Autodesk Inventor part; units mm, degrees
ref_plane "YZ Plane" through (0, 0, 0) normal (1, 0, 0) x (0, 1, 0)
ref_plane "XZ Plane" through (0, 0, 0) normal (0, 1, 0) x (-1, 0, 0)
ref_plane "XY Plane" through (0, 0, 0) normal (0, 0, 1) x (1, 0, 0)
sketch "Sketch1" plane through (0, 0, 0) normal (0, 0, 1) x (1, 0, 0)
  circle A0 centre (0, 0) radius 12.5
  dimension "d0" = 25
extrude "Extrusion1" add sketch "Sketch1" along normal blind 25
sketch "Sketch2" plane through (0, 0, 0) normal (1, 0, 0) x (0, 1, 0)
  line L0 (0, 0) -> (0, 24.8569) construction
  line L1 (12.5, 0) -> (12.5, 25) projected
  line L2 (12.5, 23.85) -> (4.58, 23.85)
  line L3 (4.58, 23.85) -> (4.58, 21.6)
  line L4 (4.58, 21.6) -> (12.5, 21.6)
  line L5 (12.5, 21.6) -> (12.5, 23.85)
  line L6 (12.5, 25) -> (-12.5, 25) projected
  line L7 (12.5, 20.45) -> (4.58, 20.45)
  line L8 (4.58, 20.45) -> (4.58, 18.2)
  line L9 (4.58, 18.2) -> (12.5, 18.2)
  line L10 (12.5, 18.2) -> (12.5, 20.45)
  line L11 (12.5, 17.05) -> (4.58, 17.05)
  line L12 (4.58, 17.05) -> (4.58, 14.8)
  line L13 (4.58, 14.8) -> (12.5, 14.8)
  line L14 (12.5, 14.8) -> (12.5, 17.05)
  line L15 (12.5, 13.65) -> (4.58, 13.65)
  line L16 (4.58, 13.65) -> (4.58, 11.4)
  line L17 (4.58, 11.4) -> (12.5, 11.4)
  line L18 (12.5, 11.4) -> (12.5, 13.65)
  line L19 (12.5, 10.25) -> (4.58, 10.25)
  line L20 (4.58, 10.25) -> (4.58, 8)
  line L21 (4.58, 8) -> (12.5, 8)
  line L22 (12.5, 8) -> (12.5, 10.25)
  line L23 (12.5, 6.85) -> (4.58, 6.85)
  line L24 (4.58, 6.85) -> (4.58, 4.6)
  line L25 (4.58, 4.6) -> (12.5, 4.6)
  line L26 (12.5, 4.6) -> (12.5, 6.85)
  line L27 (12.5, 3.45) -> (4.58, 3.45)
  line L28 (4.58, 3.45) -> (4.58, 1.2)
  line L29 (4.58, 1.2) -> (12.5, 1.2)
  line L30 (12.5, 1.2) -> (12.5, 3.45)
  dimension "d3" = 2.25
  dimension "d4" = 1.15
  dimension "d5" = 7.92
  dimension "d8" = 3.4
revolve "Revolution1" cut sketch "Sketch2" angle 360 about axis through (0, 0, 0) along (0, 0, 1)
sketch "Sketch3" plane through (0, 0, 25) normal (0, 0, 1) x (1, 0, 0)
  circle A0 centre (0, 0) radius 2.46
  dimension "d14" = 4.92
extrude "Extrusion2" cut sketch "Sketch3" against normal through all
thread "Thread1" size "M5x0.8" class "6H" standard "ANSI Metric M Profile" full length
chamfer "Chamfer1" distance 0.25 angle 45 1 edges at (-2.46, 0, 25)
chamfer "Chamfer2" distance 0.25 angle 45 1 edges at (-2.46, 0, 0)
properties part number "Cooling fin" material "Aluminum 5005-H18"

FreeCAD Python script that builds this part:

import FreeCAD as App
import Part
import Sketcher
Q = App.Units.Quantity


def edges_at(feature, points):
    """Names of the edges that pass closest to the given points."""
    edges = feature.Shape.Edges
    near = lambda p: min(range(len(edges)), key=lambda i: edges[i].distToShape(Part.Vertex(*p))[0])
    return sorted({f"Edge{near(p) + 1}" for p in points})


def add_polygon(sketch, points):
    """Adds a closed chain of lines whose ends are joined by coincident constraints."""
    first, n = sketch.GeometryCount, len(points)
    for a, b in zip(points, points[1:] + points[:1]):
        sketch.addGeometry(Part.LineSegment(App.Vector(*a, 0), App.Vector(*b, 0)), False)
    for i in range(n):
        sketch.addConstraint(Sketcher.Constraint("Coincident", first + i, 2, first + (i + 1) % n, 1))

doc = App.newDocument("Part")
params = doc.addObject("Spreadsheet::Sheet", "Params")
for row, (alias, value) in enumerate([
    ("sketch1_diameter", "25 mm"),
    ("pad1_length", "25 mm"),
    ("sketch2_width", "7.92 mm"),
    ("sketch2_height", "2.25 mm"),
    ("groove_angle", "360 deg"),
    ("sketch3_diameter", "4.92 mm"),
    ("chamfer_size", "0.25 mm"),
    ("chamfer2_size", "0.25 mm"),
], start=1):
    params.set(f"A{row}", alias)
    params.set(f"B{row}", "=" + value)
    params.setAlias(f"B{row}", alias)

body = doc.addObject("PartDesign::Body", "Body")

sketch1 = body.newObject("Sketcher::SketchObject", "Sketch")
sketch1.AttachmentSupport = (doc.getObject("XY_Plane"), [""])
sketch1.MapMode = "FlatFace"
sketch1.addGeometry(Part.Circle(App.Vector(0, 0, 0), App.Vector(0, 0, 1), 12.5), False)
sketch1.addConstraint([
    Sketcher.Constraint("Coincident", 0, 3, -1, 1),
    Sketcher.Constraint("Diameter", 0, Q("25 mm")),
])
sketch1.setExpression("Constraints[1]", "Params.sketch1_diameter")
pad1 = body.newObject("PartDesign::Pad", "Pad")
pad1.Profile = sketch1
pad1.setExpression("Length", "Params.pad1_length")

sketch2 = body.newObject("Sketcher::SketchObject", "Sketch001")
sketch2.AttachmentSupport = (doc.getObject("YZ_Plane"), [""])
sketch2.MapMode = "FlatFace"
add_polygon(sketch2, [(4.58, 1.2), (12.5, 1.2), (12.5, 3.45), (4.58, 3.45)])
add_polygon(sketch2, [(4.58, 21.6), (12.5, 21.6), (12.5, 23.85), (4.58, 23.85)])
add_polygon(sketch2, [(4.58, 18.2), (12.5, 18.2), (12.5, 20.45), (4.58, 20.45)])
add_polygon(sketch2, [(4.58, 14.8), (12.5, 14.8), (12.5, 17.05), (4.58, 17.05)])
add_polygon(sketch2, [(4.58, 11.4), (12.5, 11.4), (12.5, 13.65), (4.58, 13.65)])
add_polygon(sketch2, [(4.58, 8), (12.5, 8), (12.5, 10.25), (4.58, 10.25)])
add_polygon(sketch2, [(4.58, 4.6), (12.5, 4.6), (12.5, 6.85), (4.58, 6.85)])
sketch2.addConstraint([
    Sketcher.Constraint("Horizontal", 0),
    Sketcher.Constraint("Vertical", 1),
    Sketcher.Constraint("Horizontal", 2),
    Sketcher.Constraint("Vertical", 3),
    Sketcher.Constraint("Horizontal", 4),
    Sketcher.Constraint("Vertical", 5),
    Sketcher.Constraint("Horizontal", 6),
    Sketcher.Constraint("Vertical", 7),
    Sketcher.Constraint("Horizontal", 8),
    Sketcher.Constraint("Vertical", 9),
    Sketcher.Constraint("Horizontal", 10),
    Sketcher.Constraint("Vertical", 11),
    Sketcher.Constraint("Horizontal", 12),
    Sketcher.Constraint("Vertical", 13),
    Sketcher.Constraint("Horizontal", 14),
    Sketcher.Constraint("Vertical", 15),
    Sketcher.Constraint("Horizontal", 16),
    Sketcher.Constraint("Vertical", 17),
    Sketcher.Constraint("Horizontal", 18),
    Sketcher.Constraint("Vertical", 19),
    Sketcher.Constraint("Horizontal", 20),
    Sketcher.Constraint("Vertical", 21),
    Sketcher.Constraint("Horizontal", 22),
    Sketcher.Constraint("Vertical", 23),
    Sketcher.Constraint("Horizontal", 24),
    Sketcher.Constraint("Vertical", 25),
    Sketcher.Constraint("Horizontal", 26),
    Sketcher.Constraint("Vertical", 27),
    Sketcher.Constraint("Vertical", 1, 2, 4, 2),
    Sketcher.Constraint("Vertical", 3, 2, 6, 2),
    Sketcher.Constraint("Vertical", 5, 2, 8, 2),
    Sketcher.Constraint("Vertical", 7, 2, 10, 2),
    Sketcher.Constraint("Vertical", 9, 2, 12, 2),
    Sketcher.Constraint("Vertical", 11, 2, 14, 2),
    Sketcher.Constraint("Vertical", 13, 2, 16, 2),
    Sketcher.Constraint("Vertical", 15, 2, 18, 2),
    Sketcher.Constraint("Vertical", 17, 2, 20, 2),
    Sketcher.Constraint("Vertical", 19, 2, 22, 2),
    Sketcher.Constraint("Vertical", 21, 2, 24, 2),
    Sketcher.Constraint("Vertical", 23, 2, 26, 2),
    Sketcher.Constraint("Equal", 3, 5),
    Sketcher.Constraint("Equal", 7, 9),
    Sketcher.Constraint("Equal", 11, 13),
    Sketcher.Constraint("Equal", 15, 17),
    Sketcher.Constraint("Equal", 19, 21),
    Sketcher.Constraint("Equal", 23, 25),
    Sketcher.Constraint("DistanceX", 0, 1, 0, 2, Q("7.92 mm")),
    Sketcher.Constraint("DistanceY", 1, 1, 1, 2, Q("2.25 mm")),
    Sketcher.Constraint("DistanceY", 8, 2, 4, 2, Q("3.4 mm")),
    Sketcher.Constraint("DistanceY", 12, 2, 8, 2, Q("3.4 mm")),
    Sketcher.Constraint("DistanceY", 16, 2, 12, 2, Q("3.4 mm")),
    Sketcher.Constraint("DistanceY", 20, 2, 16, 2, Q("3.4 mm")),
    Sketcher.Constraint("DistanceY", 0, 2, 24, 2, Q("3.4 mm")),
    Sketcher.Constraint("DistanceY", 24, 2, 20, 2, Q("3.4 mm")),
    Sketcher.Constraint("DistanceY", -1, 1, 20, 2, Q("8 mm")),
    Sketcher.Constraint("DistanceX", -1, 1, 0, 2, Q("12.5 mm")),
])
sketch2.setExpression("Constraints[74]", "Params.sketch2_width")
sketch2.setExpression("Constraints[75]", "Params.sketch2_height")
groove = body.newObject("PartDesign::Groove", "Groove")
groove.Profile = sketch2
groove.ReferenceAxis = (sketch2, ["V_Axis"])
groove.setExpression("Angle", "Params.groove_angle")

sketch3 = body.newObject("Sketcher::SketchObject", "Sketch002")
sketch3.AttachmentSupport = (doc.getObject("XY_Plane"), [""])
sketch3.MapMode = "FlatFace"
sketch3.AttachmentOffset = App.Placement(App.Vector(0, 0, 25), App.Rotation())
sketch3.addGeometry(Part.Circle(App.Vector(0, 0, 0), App.Vector(0, 0, 1), 2.46), False)
sketch3.addConstraint([
    Sketcher.Constraint("Coincident", 0, 3, -1, 1),
    Sketcher.Constraint("Diameter", 0, Q("4.92 mm")),
])
sketch3.setExpression("Constraints[1]", "Params.sketch3_diameter")
pocket1 = body.newObject("PartDesign::Pocket", "Pocket")
pocket1.Profile = sketch3
pocket1.Type = "ThroughAll"
doc.recompute()

chamfer = body.newObject("PartDesign::Chamfer", "Chamfer")
chamfer.Base = (pocket1, edges_at(pocket1, [(-2.46, 0, 25)]))
chamfer.setExpression("Size", "Params.chamfer_size")
doc.recompute()

chamfer2 = body.newObject("PartDesign::Chamfer", "Chamfer001")
chamfer2.Base = (chamfer, edges_at(chamfer, [(-2.46, 0, 0)]))
chamfer2.setExpression("Size", "Params.chamfer2_size")

doc.recompute()
